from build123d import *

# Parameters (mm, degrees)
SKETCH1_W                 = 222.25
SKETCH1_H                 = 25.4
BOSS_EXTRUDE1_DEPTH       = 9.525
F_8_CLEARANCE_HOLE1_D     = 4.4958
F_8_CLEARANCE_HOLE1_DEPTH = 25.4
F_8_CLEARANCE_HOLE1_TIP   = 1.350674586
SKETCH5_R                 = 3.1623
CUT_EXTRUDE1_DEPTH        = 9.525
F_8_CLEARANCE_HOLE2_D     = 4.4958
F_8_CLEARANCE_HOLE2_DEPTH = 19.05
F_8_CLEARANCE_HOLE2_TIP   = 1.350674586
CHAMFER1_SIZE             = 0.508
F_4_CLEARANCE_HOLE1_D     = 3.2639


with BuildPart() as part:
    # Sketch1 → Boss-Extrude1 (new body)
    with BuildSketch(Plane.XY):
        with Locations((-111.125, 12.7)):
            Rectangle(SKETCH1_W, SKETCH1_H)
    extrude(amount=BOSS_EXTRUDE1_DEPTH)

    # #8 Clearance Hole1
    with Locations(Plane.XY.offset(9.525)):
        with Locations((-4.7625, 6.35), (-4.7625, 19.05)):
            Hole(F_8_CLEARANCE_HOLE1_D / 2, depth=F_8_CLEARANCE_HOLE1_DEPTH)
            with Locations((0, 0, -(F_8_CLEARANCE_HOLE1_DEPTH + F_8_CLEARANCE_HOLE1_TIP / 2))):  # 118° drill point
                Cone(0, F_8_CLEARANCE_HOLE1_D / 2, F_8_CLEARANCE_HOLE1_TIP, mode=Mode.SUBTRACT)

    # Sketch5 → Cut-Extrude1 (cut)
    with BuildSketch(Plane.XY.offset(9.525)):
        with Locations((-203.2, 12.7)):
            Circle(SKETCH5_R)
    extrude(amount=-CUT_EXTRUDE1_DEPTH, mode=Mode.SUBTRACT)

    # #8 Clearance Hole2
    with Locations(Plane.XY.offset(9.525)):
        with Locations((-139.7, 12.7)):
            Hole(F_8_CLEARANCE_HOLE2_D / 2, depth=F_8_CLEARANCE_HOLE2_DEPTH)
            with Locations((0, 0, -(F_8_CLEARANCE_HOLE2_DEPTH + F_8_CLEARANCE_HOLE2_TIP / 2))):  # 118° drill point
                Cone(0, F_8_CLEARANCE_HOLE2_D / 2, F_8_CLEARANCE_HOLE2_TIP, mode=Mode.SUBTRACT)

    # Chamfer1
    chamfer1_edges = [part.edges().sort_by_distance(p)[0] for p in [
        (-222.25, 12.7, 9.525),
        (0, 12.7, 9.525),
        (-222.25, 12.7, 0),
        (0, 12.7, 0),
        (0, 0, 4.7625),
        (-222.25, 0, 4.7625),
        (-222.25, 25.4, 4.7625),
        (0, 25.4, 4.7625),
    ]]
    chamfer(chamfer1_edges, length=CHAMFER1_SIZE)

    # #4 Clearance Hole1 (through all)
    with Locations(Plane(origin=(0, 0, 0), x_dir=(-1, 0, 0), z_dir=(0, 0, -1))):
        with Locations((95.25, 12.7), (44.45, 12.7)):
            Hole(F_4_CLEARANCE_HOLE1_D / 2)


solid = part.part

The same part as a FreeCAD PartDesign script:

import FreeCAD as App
import Part
import Sketcher
Q = App.Units.Quantity


def edges_at(feature, points):
    """Names of the edges that pass closest to the given points."""
    edges = feature.Shape.Edges
    near = lambda p: min(range(len(edges)), key=lambda i: edges[i].distToShape(Part.Vertex(*p))[0])
    return sorted({f"Edge{near(p) + 1}" for p in points})

doc = App.newDocument("Part")
body = doc.addObject("PartDesign::Body", "Body")

# Sketch on XY plane
sketch1 = body.newObject("Sketcher::SketchObject", "Sketch")
sketch1.AttachmentSupport = (doc.getObject("XY_Plane"), [""])
sketch1.MapMode = "FlatFace"
sketch1.addGeometry(Part.LineSegment(App.Vector(-222, 25, 0), App.Vector(-222, 0, 0)), False)
sketch1.addGeometry(Part.LineSegment(App.Vector(-222, 0, 0), App.Vector(0, 0, 0)), False)
sketch1.addGeometry(Part.LineSegment(App.Vector(0, 0, 0), App.Vector(0, 25, 0)), False)
sketch1.addGeometry(Part.LineSegment(App.Vector(0, 25, 0), App.Vector(-222, 25, 0)), False)
sketch1.addConstraint(Sketcher.Constraint("Coincident", 0, 2, 1, 1))
sketch1.addConstraint(Sketcher.Constraint("Coincident", 1, 2, 2, 1))
sketch1.addConstraint(Sketcher.Constraint("Coincident", 2, 2, 3, 1))
sketch1.addConstraint(Sketcher.Constraint("Coincident", 3, 2, 0, 1))
sketch1.addConstraint(Sketcher.Constraint("Vertical", 0))
sketch1.addConstraint(Sketcher.Constraint("Horizontal", 1))
sketch1.addConstraint(Sketcher.Constraint("Vertical", 2))
sketch1.addConstraint(Sketcher.Constraint("Horizontal", 3))
sketch1.addConstraint(Sketcher.Constraint("Coincident", 1, 2, -1, 1))
sketch1.addConstraint(Sketcher.Constraint("DistanceY", 0, 2, 0, 1, Q("1 in")))
sketch1.addConstraint(Sketcher.Constraint("DistanceX", 1, 1, 1, 2, Q("8.75 in")))
pad1 = body.newObject("PartDesign::Pad", "Pad")
pad1.Profile = sketch1
pad1.Length = Q("0.375 in")

# Sketch on XY plane
sketch2 = body.newObject("Sketcher::SketchObject", "Sketch001")
sketch2.AttachmentSupport = (doc.getObject("XY_Plane"), [""])
sketch2.MapMode = "FlatFace"
sketch2.AttachmentOffset = App.Placement(App.Vector(0, 0, 0.375 * 25.4), App.Rotation())
sketch2.addGeometry(Part.Circle(App.Vector(-4.8, 6.3, 0), App.Vector(0, 0, 1), 2.2), False)
sketch2.addGeometry(Part.Circle(App.Vector(-4.8, 19.1, 0), App.Vector(0, 0, 1), 2.2), False)
sketch2.addConstraint(Sketcher.Constraint("Equal", 0, 1))
sketch2.addConstraint(Sketcher.Constraint("Vertical", 0, 3, 1, 3))
sketch2.addConstraint(Sketcher.Constraint("Diameter", 0, Q("0.177 in")))
sketch2.addConstraint(Sketcher.Constraint("DistanceY", 0, 3, 1, 3, Q("0.5 in")))
sketch2.addConstraint(Sketcher.Constraint("DistanceY", -1, 1, 0, 3, Q("0.25 in")))
sketch2.addConstraint(Sketcher.Constraint("DistanceX", 0, 3, -1, 1, Q("0.1875 in")))
doc.recompute()
hole = body.newObject("PartDesign::Hole", "Hole")
hole.Profile = sketch2
hole.ThreadType = "None"
hole.Diameter = Q("0.177 in")
hole.DepthType = "Dimension"
hole.Depth = Q("1 in")
hole.DrillPoint = "Angled"
hole.DrillPointAngle = 118

# Sketch on XY plane
sketch3 = body.newObject("Sketcher::SketchObject", "Sketch002")
sketch3.AttachmentSupport = (doc.getObject("XY_Plane"), [""])
sketch3.MapMode = "FlatFace"
sketch3.AttachmentOffset = App.Placement(App.Vector(0, 0, 0.375 * 25.4), App.Rotation())
sketch3.addGeometry(Part.Circle(App.Vector(-203.2, 12.7, 0), App.Vector(0, 0, 1), 3.2), False)
sketch3.addConstraint(Sketcher.Constraint("Diameter", 0, Q("0.249 in")))
sketch3.addConstraint(Sketcher.Constraint("DistanceX", 0, 3, -1, 1, Q("8 in")))
sketch3.addConstraint(Sketcher.Constraint("DistanceY", -1, 1, 0, 3, Q("0.5 in")))
pocket1 = body.newObject("PartDesign::Pocket", "Pocket")
pocket1.Profile = sketch3
pocket1.Length = Q("0.375 in")

# Sketch on XY plane
sketch4 = body.newObject("Sketcher::SketchObject", "Sketch003")
sketch4.AttachmentSupport = (doc.getObject("XY_Plane"), [""])
sketch4.MapMode = "FlatFace"
sketch4.AttachmentOffset = App.Placement(App.Vector(0, 0, 0.375 * 25.4), App.Rotation())
sketch4.addGeometry(Part.Circle(App.Vector(-139.7, 12.7, 0), App.Vector(0, 0, 1), 2.2), False)
sketch4.addConstraint(Sketcher.Constraint("Diameter", 0, Q("0.177 in")))
sketch4.addConstraint(Sketcher.Constraint("DistanceX", 0, 3, -1, 1, Q("5.5 in")))
sketch4.addConstraint(Sketcher.Constraint("DistanceY", -1, 1, 0, 3, Q("0.5 in")))
doc.recompute()
hole2 = body.newObject("PartDesign::Hole", "Hole001")
hole2.Profile = sketch4
hole2.ThreadType = "None"
hole2.Diameter = Q("0.177 in")
hole2.DepthType = "Dimension"
hole2.Depth = Q("0.75 in")
hole2.DrillPoint = "Angled"
hole2.DrillPointAngle = 118
doc.recompute()

chamfer = body.newObject("PartDesign::Chamfer", "Chamfer")
chamfer.Base = (hole2, edges_at(hole2, [
    (-222.25, 12.7, 9.525),
    (0, 12.7, 9.525),
    (-222.25, 12.7, 0),
    (0, 12.7, 0),
    (0, 0, 4.763),
    (-222.25, 0, 4.763),
    (-222.25, 25.4, 4.763),
    (0, 25.4, 4.763),
]))
chamfer.Size = Q("0.02 in")

# Sketch on XY plane
sketch5 = body.newObject("Sketcher::SketchObject", "Sketch004")
sketch5.AttachmentSupport = (doc.getObject("XY_Plane"), [""])
sketch5.MapMode = "FlatFace"
sketch5.addGeometry(Part.Circle(App.Vector(-95.2, 12.7, 0), App.Vector(0, 0, 1), 1.6), False)
sketch5.addGeometry(Part.Circle(App.Vector(-44.5, 12.7, 0), App.Vector(0, 0, 1), 1.6), False)
sketch5.addConstraint(Sketcher.Constraint("Equal", 0, 1))
sketch5.addConstraint(Sketcher.Constraint("Horizontal", 0, 3, 1, 3))
sketch5.addConstraint(Sketcher.Constraint("DistanceX", 0, 3, 1, 3, Q("2 in")))
sketch5.addConstraint(Sketcher.Constraint("Diameter", 0, Q("0.1285 in")))
sketch5.addConstraint(Sketcher.Constraint("DistanceY", -1, 1, 0, 3, Q("0.5 in")))
sketch5.addConstraint(Sketcher.Constraint("DistanceX", 0, 3, -1, 1, Q("3.75 in")))
doc.recompute()
hole3 = body.newObject("PartDesign::Hole", "Hole002")
hole3.Profile = sketch5
hole3.ThreadType = "None"
hole3.Diameter = Q("0.1285 in")
hole3.DepthType = "ThroughAll"
hole3.Reversed = True

doc.recompute()
